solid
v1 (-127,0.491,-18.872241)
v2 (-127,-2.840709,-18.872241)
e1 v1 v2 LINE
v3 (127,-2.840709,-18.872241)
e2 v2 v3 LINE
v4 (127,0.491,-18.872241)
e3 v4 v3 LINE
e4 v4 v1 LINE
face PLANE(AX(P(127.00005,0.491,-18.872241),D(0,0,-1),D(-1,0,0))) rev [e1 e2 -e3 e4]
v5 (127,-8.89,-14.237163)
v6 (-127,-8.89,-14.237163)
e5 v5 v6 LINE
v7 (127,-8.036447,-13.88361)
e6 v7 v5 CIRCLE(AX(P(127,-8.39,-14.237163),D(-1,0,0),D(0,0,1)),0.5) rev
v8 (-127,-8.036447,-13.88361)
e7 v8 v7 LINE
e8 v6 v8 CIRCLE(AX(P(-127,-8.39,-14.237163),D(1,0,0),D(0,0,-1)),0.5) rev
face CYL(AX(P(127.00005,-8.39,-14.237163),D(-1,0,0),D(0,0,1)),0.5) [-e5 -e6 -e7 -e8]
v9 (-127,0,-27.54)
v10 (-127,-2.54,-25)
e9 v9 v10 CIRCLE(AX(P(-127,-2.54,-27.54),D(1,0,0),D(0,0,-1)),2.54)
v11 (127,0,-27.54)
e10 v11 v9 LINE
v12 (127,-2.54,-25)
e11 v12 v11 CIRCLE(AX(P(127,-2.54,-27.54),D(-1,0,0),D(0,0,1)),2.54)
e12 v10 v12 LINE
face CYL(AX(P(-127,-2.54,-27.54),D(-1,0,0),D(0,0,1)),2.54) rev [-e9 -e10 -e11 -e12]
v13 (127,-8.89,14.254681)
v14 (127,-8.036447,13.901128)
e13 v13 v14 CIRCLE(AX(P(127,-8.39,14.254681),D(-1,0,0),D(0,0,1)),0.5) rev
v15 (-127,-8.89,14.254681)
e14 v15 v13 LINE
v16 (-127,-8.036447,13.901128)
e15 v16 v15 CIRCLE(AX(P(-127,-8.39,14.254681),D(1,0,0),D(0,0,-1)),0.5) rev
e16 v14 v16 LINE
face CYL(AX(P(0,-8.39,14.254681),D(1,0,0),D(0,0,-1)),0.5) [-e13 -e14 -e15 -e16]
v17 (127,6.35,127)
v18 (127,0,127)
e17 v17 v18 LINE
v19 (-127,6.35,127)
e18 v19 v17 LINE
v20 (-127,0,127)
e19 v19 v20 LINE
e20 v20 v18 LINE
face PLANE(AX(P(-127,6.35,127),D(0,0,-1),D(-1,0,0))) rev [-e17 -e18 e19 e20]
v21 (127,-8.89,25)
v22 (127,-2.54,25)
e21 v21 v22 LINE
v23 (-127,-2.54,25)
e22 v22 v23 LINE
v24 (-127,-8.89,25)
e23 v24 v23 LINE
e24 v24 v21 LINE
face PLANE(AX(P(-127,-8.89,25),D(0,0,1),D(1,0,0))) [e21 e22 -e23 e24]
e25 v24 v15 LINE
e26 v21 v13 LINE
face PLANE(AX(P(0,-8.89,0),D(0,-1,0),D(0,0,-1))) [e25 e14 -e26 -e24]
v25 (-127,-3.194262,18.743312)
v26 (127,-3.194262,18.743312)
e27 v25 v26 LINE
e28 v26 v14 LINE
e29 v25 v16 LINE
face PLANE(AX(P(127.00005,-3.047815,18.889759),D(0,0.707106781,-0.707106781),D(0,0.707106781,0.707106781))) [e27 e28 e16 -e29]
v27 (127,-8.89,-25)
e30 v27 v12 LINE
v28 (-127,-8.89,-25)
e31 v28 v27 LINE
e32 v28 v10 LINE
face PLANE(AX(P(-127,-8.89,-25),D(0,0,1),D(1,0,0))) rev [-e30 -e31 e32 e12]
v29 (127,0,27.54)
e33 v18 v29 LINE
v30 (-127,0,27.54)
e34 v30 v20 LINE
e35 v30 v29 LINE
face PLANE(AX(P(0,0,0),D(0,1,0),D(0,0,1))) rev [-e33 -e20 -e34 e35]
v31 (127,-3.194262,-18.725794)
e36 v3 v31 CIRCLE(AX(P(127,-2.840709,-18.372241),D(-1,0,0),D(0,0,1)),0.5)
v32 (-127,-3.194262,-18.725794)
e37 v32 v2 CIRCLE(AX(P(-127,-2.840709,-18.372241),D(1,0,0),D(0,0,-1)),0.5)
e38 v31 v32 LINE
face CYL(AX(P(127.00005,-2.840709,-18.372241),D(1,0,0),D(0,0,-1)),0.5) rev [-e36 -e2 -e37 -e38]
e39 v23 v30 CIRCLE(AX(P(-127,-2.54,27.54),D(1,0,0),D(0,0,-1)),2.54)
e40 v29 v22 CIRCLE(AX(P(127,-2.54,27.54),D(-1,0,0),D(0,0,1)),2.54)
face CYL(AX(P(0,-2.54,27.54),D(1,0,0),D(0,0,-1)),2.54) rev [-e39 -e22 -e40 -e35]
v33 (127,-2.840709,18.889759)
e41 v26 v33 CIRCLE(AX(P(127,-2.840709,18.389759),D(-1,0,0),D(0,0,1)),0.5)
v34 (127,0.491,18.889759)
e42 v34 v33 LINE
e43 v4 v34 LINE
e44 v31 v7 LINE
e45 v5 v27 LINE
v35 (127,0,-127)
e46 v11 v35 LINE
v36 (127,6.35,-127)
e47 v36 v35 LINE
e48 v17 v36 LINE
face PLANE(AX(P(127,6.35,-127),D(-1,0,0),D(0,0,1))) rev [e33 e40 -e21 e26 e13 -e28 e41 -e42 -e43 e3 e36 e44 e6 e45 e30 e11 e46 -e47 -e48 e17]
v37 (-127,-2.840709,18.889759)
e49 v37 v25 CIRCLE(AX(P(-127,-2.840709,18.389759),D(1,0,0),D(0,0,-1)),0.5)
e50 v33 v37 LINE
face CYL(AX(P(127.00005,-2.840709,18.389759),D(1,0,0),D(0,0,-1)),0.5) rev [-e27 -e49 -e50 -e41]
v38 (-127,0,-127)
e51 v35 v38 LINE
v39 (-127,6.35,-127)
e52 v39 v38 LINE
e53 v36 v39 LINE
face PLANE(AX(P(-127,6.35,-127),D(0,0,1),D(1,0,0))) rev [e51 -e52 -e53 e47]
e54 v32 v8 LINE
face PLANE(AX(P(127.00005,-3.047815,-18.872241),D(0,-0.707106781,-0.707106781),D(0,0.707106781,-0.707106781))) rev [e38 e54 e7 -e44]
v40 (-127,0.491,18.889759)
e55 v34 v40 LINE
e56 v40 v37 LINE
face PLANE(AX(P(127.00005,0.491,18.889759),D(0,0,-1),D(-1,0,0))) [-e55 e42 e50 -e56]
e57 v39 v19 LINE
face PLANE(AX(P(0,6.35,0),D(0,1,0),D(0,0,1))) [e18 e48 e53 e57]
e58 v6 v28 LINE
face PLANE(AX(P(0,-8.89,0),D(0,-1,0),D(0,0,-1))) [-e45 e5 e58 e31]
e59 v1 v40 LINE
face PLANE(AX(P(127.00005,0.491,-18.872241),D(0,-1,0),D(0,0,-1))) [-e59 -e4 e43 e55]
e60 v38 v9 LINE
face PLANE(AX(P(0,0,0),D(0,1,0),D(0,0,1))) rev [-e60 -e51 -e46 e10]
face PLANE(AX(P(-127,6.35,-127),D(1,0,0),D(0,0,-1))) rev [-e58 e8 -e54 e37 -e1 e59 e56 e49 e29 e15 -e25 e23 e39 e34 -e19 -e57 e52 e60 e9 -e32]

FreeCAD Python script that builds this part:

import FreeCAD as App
import Part
import Sketcher
Q = App.Units.Quantity


def edges_at(feature, points):
    """Names of the edges that pass closest to the given points."""
    edges = feature.Shape.Edges
    near = lambda p: min(range(len(edges)), key=lambda i: edges[i].distToShape(Part.Vertex(*p))[0])
    return sorted({f"Edge{near(p) + 1}" for p in points})


def add_polygon(sketch, points):
    """Adds a closed chain of lines whose ends are joined by coincident constraints."""
    first, n = sketch.GeometryCount, len(points)
    for a, b in zip(points, points[1:] + points[:1]):
        sketch.addGeometry(Part.LineSegment(App.Vector(*a, 0), App.Vector(*b, 0)), False)
    for i in range(n):
        sketch.addConstraint(Sketcher.Constraint("Coincident", first + i, 2, first + (i + 1) % n, 1))

doc = App.newDocument("Part")
body = doc.addObject("PartDesign::Body", "Body")

# Sketch on XZ plane
sketch1 = body.newObject("Sketcher::SketchObject", "Sketch")
sketch1.AttachmentSupport = (doc.getObject("XZ_Plane"), [""])
sketch1.MapMode = "FlatFace"
add_polygon(sketch1, [(-127, -127), (-127, 127), (127, 127), (127, -127)])  # lines 0-3
sketch1.addConstraint([
    Sketcher.Constraint("Vertical", 0),
    Sketcher.Constraint("Horizontal", 1),
    Sketcher.Constraint("Vertical", 2),
    Sketcher.Constraint("Horizontal", 3),
    Sketcher.Constraint("Symmetric", 0, 2, 2, 2, -1, 1),
    Sketcher.Constraint("Equal", 3, 0),
    Sketcher.Constraint("DistanceX", 1, 1, 1, 2, Q("10 in")),
])
pad1 = body.newObject("PartDesign::Pad", "Pad")
pad1.Profile = sketch1
pad1.Length = Q("0.25 in")
pad1.Reversed = True

# Sketch on XZ plane
sketch2 = body.newObject("Sketcher::SketchObject", "Sketch001")
sketch2.AttachmentSupport = (doc.getObject("XZ_Plane"), [""])
sketch2.MapMode = "FlatFace"
add_polygon(sketch2, [(-127, 25), (-127, -25), (127, -25), (127, 25)])  # lines 0-3
sketch2.addConstraint([
    Sketcher.Constraint("Vertical", 0),
    Sketcher.Constraint("Horizontal", 1),
    Sketcher.Constraint("Vertical", 2),
    Sketcher.Constraint("Horizontal", 3),
    Sketcher.Constraint("Symmetric", 0, 2, 2, 2, -1, 1),
    Sketcher.Constraint("DistanceX", 1, 1, 1, 2, Q("10 in")),
    Sketcher.Constraint("DistanceY", 0, 2, 0, 1, Q("50 mm")),
])
pad2 = body.newObject("PartDesign::Pad", "Pad001")
pad2.Profile = sketch2
pad2.Length = Q("0.35 in")

# Sketch on YZ plane
sketch3 = body.newObject("Sketcher::SketchObject", "Sketch002")
sketch3.AttachmentSupport = (doc.getObject("YZ_Plane"), [""])
sketch3.MapMode = "FlatFace"
sketch3.AttachmentOffset = App.Placement(App.Vector(0, 0, -5 * 25.4), App.Rotation())
add_polygon(sketch3, [(-9.3, 12.7), (-3, 18.9), (0.5, 18.9), (0.5, -18.9), (-3, -18.9), (-9.3, -12.6)])  # lines 0-5
sketch3.addConstraint([
    Sketcher.Constraint("Horizontal", 1),
    Sketcher.Constraint("Vertical", 2),
    Sketcher.Constraint("Horizontal", 3),
    Sketcher.Constraint("Vertical", 5),
    Sketcher.Constraint("Perpendicular", 0, 4),
    Sketcher.Constraint("Vertical", 0, 2, 3, 2),
    Sketcher.Constraint("Equal", 0, 4),
    Sketcher.Constraint("DistanceX", 4, 2, -1, 1, Q("0.365 in")),
    Sketcher.Constraint("DistanceY", 2, 2, 2, 1, Q("37.762 mm")),
    Sketcher.Constraint("DistanceY", 5, 1, 5, 2, Q("25.315631 mm")),
    Sketcher.Constraint("DistanceX", -1, 1, 1, 2, Q("0.491 mm")),
    Sketcher.Constraint("DistanceY", -1, 1, 0, 2, Q("18.889759 mm")),
])
pocket1 = body.newObject("PartDesign::Pocket", "Pocket")
pocket1.Profile = sketch3
pocket1.Type = "ThroughAll"
pocket1.Reversed = True
doc.recompute()

fillet = body.newObject("PartDesign::Fillet", "Fillet")
fillet.Base = (pocket1, edges_at(pocket1, [
    (0, -8.89, -13.03),
    (0, -8.89, 13.048),
    (0, -3.048, -18.872),
    (0, -3.048, 18.89),
]))
fillet.Radius = 0.5
doc.recompute()

fillet2 = body.newObject("PartDesign::Fillet", "Fillet001")
fillet2.Base = (fillet, edges_at(fillet, [(0, 0, -25), (0, 0, 25)]))
fillet2.Radius = Q("0.1 in")

doc.recompute()
